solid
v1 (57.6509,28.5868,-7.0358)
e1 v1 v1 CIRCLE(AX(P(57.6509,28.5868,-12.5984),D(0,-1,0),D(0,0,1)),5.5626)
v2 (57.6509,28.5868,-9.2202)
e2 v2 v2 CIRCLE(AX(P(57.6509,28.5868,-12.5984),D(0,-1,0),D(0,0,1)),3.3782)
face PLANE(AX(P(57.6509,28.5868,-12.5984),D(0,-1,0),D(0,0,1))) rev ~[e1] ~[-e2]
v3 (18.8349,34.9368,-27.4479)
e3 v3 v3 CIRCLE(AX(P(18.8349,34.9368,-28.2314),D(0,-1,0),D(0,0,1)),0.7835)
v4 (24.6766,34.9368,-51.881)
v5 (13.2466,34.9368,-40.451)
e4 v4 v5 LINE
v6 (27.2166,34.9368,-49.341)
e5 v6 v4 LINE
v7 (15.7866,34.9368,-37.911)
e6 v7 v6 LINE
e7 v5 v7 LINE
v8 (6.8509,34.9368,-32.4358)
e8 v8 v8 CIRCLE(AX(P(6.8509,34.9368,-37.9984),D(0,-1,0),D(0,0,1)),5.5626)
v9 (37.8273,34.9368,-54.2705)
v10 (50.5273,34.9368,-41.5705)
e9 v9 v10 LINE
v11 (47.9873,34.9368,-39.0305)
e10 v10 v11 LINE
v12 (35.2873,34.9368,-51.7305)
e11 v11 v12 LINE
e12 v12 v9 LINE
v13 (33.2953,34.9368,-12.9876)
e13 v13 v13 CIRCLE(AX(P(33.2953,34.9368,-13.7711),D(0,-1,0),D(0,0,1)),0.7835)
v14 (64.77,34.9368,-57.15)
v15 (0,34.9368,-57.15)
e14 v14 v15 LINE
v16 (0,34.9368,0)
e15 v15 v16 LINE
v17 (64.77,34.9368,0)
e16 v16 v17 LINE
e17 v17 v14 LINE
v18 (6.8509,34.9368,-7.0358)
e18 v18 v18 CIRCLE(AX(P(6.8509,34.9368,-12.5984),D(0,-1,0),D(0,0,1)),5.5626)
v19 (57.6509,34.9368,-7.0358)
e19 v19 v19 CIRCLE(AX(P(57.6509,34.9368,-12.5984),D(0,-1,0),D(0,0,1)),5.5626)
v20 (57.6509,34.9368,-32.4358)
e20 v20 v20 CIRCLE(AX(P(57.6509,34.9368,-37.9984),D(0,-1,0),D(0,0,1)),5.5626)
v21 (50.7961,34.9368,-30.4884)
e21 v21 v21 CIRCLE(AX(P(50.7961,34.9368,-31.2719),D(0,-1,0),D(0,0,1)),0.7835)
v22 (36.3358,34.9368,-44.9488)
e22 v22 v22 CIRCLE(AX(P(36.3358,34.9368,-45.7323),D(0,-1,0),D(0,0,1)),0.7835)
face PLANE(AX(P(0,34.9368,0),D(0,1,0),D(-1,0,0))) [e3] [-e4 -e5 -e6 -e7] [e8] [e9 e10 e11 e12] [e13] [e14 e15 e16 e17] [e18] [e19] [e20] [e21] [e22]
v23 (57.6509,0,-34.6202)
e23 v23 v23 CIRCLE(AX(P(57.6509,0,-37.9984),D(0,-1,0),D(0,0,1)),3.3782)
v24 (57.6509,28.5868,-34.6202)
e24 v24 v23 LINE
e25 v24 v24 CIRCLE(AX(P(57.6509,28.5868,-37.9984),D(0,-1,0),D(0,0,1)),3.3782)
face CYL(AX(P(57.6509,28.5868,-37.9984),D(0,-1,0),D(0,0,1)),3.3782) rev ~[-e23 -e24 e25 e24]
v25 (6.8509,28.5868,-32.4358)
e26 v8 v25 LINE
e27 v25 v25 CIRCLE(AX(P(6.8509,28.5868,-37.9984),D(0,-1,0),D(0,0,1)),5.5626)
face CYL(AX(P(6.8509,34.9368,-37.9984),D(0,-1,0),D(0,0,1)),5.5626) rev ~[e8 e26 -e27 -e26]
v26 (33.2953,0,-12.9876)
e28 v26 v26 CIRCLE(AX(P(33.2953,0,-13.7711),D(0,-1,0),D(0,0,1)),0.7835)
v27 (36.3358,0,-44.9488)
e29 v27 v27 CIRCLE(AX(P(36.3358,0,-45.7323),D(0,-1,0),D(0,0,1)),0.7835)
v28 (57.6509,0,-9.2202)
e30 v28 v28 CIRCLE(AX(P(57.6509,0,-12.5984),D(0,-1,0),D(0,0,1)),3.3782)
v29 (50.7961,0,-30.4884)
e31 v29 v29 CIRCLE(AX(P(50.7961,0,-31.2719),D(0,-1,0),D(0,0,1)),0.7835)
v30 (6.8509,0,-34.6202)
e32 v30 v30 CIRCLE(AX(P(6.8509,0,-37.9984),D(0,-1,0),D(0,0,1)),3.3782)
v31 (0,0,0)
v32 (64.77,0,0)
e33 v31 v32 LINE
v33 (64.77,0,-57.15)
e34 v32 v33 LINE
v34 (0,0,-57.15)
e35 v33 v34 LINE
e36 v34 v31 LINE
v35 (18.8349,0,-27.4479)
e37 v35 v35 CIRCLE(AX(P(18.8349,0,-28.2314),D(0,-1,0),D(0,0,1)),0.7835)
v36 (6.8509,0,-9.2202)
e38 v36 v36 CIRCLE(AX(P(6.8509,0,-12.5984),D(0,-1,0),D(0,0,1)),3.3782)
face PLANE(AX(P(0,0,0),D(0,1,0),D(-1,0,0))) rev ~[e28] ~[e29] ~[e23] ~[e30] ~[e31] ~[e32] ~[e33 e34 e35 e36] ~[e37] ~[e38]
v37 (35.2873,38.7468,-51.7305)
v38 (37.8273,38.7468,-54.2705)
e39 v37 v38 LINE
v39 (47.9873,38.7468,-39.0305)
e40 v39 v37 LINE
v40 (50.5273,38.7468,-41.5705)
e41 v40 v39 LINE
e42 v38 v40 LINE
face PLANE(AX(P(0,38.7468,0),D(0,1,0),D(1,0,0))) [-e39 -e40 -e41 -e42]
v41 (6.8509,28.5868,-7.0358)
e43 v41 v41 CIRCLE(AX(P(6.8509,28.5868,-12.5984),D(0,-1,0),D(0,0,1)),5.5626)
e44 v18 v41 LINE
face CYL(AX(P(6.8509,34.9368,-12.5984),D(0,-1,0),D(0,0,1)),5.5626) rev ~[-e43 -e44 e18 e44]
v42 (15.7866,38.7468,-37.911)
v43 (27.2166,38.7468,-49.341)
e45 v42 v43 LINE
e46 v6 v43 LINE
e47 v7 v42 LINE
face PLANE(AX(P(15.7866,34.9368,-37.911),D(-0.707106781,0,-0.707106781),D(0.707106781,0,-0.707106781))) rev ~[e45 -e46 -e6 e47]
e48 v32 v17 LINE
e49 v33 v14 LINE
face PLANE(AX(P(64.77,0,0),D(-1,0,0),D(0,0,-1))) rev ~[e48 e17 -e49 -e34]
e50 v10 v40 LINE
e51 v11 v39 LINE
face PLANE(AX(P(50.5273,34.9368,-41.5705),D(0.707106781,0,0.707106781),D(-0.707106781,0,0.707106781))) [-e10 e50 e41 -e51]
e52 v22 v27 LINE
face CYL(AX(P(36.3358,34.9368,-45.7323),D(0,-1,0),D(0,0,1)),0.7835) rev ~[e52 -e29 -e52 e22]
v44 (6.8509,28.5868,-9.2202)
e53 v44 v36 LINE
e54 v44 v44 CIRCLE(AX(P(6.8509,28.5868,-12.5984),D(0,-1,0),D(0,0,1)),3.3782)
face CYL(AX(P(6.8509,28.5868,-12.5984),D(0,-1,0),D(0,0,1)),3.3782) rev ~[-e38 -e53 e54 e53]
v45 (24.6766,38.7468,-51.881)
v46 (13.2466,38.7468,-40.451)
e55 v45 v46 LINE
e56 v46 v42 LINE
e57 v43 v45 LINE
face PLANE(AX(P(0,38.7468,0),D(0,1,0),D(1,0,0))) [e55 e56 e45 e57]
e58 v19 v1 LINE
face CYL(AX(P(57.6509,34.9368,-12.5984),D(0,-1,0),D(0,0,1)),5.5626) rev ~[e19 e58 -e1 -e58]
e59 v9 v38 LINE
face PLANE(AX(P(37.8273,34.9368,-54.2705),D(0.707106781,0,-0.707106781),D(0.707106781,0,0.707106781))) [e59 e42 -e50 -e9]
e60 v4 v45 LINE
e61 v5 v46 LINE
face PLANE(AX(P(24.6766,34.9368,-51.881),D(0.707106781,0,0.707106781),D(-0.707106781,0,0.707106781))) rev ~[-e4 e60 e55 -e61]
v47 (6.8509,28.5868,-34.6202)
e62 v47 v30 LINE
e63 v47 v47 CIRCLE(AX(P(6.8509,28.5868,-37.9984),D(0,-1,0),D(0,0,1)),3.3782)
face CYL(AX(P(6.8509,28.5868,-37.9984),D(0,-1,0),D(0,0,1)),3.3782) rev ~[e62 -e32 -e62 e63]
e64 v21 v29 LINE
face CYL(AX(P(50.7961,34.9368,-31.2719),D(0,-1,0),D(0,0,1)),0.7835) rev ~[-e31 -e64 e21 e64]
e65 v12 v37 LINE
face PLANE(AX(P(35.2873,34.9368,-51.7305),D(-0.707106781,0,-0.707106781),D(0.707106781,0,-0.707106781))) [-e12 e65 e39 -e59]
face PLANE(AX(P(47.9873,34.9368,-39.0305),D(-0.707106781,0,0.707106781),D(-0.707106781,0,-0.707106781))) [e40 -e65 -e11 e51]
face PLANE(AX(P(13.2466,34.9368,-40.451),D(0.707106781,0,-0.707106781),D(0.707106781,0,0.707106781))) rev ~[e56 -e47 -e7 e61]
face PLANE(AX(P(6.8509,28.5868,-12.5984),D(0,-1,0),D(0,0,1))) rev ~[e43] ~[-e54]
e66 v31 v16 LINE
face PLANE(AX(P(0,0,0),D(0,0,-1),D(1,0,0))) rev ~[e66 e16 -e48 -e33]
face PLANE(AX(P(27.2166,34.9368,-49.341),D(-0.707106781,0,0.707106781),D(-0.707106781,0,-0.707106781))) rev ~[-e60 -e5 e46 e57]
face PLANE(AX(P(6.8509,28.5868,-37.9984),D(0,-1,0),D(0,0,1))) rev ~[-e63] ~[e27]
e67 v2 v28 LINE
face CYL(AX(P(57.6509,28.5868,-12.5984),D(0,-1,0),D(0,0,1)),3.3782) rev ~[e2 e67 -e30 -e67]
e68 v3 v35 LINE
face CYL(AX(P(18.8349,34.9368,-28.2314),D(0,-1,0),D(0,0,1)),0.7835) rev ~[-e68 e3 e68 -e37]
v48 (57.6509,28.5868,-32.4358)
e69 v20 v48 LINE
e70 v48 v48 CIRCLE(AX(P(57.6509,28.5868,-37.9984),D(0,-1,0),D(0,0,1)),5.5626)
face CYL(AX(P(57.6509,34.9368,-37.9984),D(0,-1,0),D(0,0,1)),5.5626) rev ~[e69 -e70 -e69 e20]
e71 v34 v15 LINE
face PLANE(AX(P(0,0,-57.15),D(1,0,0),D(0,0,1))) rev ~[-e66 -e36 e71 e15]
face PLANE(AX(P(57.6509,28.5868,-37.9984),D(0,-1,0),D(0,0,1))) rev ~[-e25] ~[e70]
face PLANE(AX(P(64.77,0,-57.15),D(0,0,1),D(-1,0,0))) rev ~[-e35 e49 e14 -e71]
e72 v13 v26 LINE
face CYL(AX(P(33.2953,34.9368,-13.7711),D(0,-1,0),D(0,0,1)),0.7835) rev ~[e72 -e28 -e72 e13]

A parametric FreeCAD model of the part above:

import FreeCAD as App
import Part
import Sketcher

V = App.Vector
Q = App.Units.Quantity

doc = App.newDocument("Part")
body = doc.addObject("PartDesign::Body", "Body")

# Sketch on XZ plane
sketch1 = doc.addObject("Sketcher::SketchObject", "Sketch")
body.addObject(sketch1)
sketch1.AttachmentSupport = (doc.XZ_Plane, [""])
sketch1.MapMode = "FlatFace"
sketch1.addGeometry(Part.LineSegment(V(0, -57.15, 0), V(0, 0, 0)), False)
sketch1.addGeometry(Part.LineSegment(V(0, 0, 0), V(64.77, 0, 0)), False)
sketch1.addGeometry(Part.LineSegment(V(64.77, 0, 0), V(64.77, -57.15, 0)), False)
sketch1.addGeometry(Part.LineSegment(V(64.77, -57.15, 0), V(0, -57.15, 0)), False)
sketch1.addConstraint(Sketcher.Constraint("Coincident", 0, 2, 1, 1))
sketch1.addConstraint(Sketcher.Constraint("Coincident", 1, 2, 2, 1))
sketch1.addConstraint(Sketcher.Constraint("Coincident", 2, 2, 3, 1))
sketch1.addConstraint(Sketcher.Constraint("Coincident", 3, 2, 0, 1))
sketch1.addConstraint(Sketcher.Constraint("Vertical", 0))
sketch1.addConstraint(Sketcher.Constraint("Horizontal", 1))
sketch1.addConstraint(Sketcher.Constraint("Vertical", 2))
sketch1.addConstraint(Sketcher.Constraint("Horizontal", 3))
sketch1.addConstraint(Sketcher.Constraint("Coincident", 0, 2, -1, 1))
sketch1.addConstraint(Sketcher.Constraint("DistanceX", 1, 1, 1, 2, Q("2.55 in")))
sketch1.addConstraint(Sketcher.Constraint("DistanceY", 0, 1, 0, 2, Q("2.25 in")))
pad1 = doc.addObject("PartDesign::Pad", "Pad")
body.addObject(pad1)
pad1.Profile = sketch1
pad1.Length = 34.9368
pad1.Reversed = True

# Sketch on XZ plane
sketch2 = doc.addObject("Sketcher::SketchObject", "Sketch001")
body.addObject(sketch2)
sketch2.AttachmentSupport = (doc.XZ_Plane, [""])
sketch2.MapMode = "FlatFace"
sketch2.AttachmentOffset = App.Placement(V(0, 0, -34.9368), App.Rotation())
sketch2.addGeometry(Part.Circle(V(50.7961, -31.2719, 0), V(0, 0, 1), 0.7835), False)
sketch2.addGeometry(Part.Circle(V(36.3358, -45.7323, 0), V(0, 0, 1), 0.7835), False)
sketch2.addGeometry(Part.Circle(V(18.8349, -28.2314, 0), V(0, 0, 1), 0.7835), False)
sketch2.addGeometry(Part.Circle(V(33.2953, -13.7711, 0), V(0, 0, 1), 0.7835), False)
sketch2.addConstraint(Sketcher.Constraint("Equal", 0, 1))
sketch2.addConstraint(Sketcher.Constraint("Equal", 1, 2))
sketch2.addConstraint(Sketcher.Constraint("Equal", 2, 3))
sketch2.addConstraint(Sketcher.Constraint("Diameter", 0, Q("0.0617 in")))
sketch2.addConstraint(Sketcher.Constraint("DistanceX", 2, 3, 1, 3, Q("0.689 in")))
sketch2.addConstraint(Sketcher.Constraint("DistanceY", 1, 3, 2, 3, Q("0.689 in")))
sketch2.addConstraint(Sketcher.Constraint("DistanceX", 3, 3, 0, 3, Q("0.689 in")))
sketch2.addConstraint(Sketcher.Constraint("DistanceY", 0, 3, 3, 3, Q("0.689 in")))
sketch2.addConstraint(Sketcher.Constraint("DistanceX", 1, 3, 0, 3, Q("0.5693 in")))
sketch2.addConstraint(Sketcher.Constraint("DistanceY", 1, 3, 0, 3, Q("0.5693 in")))
sketch2.addConstraint(Sketcher.Constraint("DistanceX", -1, 1, 0, 3, 50.796))
sketch2.addConstraint(Sketcher.Constraint("DistanceY", 0, 3, -1, 1, 31.272))
doc.recompute()
hole = doc.addObject("PartDesign::Hole", "Hole")
body.addObject(hole)
hole.Profile = sketch2
hole.ThreadType = "None"
hole.Diameter = Q("0.0616929 in")
hole.DepthType = "ThroughAll"
hole.Reversed = True

# Sketch on XZ plane
sketch3 = doc.addObject("Sketcher::SketchObject", "Sketch002")
body.addObject(sketch3)
sketch3.AttachmentSupport = (doc.XZ_Plane, [""])
sketch3.MapMode = "FlatFace"
sketch3.AttachmentOffset = App.Placement(V(0, 0, -34.9368), App.Rotation())
sketch3.addGeometry(Part.Circle(V(57.6509, -37.9984, 0), V(0, 0, 1), 3.3782), False)
sketch3.addGeometry(Part.Circle(V(57.6509, -12.5984, 0), V(0, 0, 1), 3.3782), False)
sketch3.addGeometry(Part.Circle(V(6.8509, -12.5984, 0), V(0, 0, 1), 3.3782), False)
sketch3.addGeometry(Part.Circle(V(6.8509, -37.9984, 0), V(0, 0, 1), 3.3782), False)
sketch3.addConstraint(Sketcher.Constraint("Equal", 0, 1))
sketch3.addConstraint(Sketcher.Constraint("Equal", 1, 2))
sketch3.addConstraint(Sketcher.Constraint("Equal", 2, 3))
sketch3.addConstraint(Sketcher.Constraint("Horizontal", 1, 3, 2, 3))
sketch3.addConstraint(Sketcher.Constraint("Horizontal", 0, 3, 3, 3))
sketch3.addConstraint(Sketcher.Constraint("Vertical", 0, 3, 1, 3))
sketch3.addConstraint(Sketcher.Constraint("Vertical", 2, 3, 3, 3))
sketch3.addConstraint(Sketcher.Constraint("Diameter", 0, Q("0.266 in")))
sketch3.addConstraint(Sketcher.Constraint("DistanceY", 0, 3, 1, 3, Q("1 in")))
sketch3.addConstraint(Sketcher.Constraint("DistanceX", 2, 3, 1, 3, Q("2 in")))
sketch3.addConstraint(Sketcher.Constraint("DistanceY", 0, 3, -1, 1, Q("1.496 in")))
sketch3.addConstraint(Sketcher.Constraint("DistanceX", -1, 1, 0, 3, 57.651))
doc.recompute()
hole2 = doc.addObject("PartDesign::Hole", "Hole001")
body.addObject(hole2)
hole2.Profile = sketch3
hole2.ThreadType = "None"
hole2.Diameter = Q("0.266 in")
hole2.DepthType = "ThroughAll"
hole2.HoleCutType = "Counterbore"
hole2.HoleCutDiameter = Q("0.438 in")
hole2.HoleCutDepth = Q("0.25 in")
hole2.Reversed = True

# Sketch on XZ plane
sketch4 = doc.addObject("Sketcher::SketchObject", "Sketch003")
body.addObject(sketch4)
sketch4.AttachmentSupport = (doc.XZ_Plane, [""])
sketch4.MapMode = "FlatFace"
sketch4.AttachmentOffset = App.Placement(V(0, 0, -34.9368), App.Rotation())
sketch4.addGeometry(Part.LineSegment(V(13.2466, -40.451, 0), V(15.7866, -37.911, 0)), False)
sketch4.addGeometry(Part.LineSegment(V(15.7866, -37.911, 0), V(27.2166, -49.341, 0)), False)
sketch4.addGeometry(Part.LineSegment(V(27.2166, -49.341, 0), V(24.6766, -51.881, 0)), False)
sketch4.addGeometry(Part.LineSegment(V(24.6766, -51.881, 0), V(13.2466, -40.451, 0)), False)
sketch4.addConstraint(Sketcher.Constraint("Coincident", 0, 2, 1, 1))
sketch4.addConstraint(Sketcher.Constraint("Coincident", 1, 2, 2, 1))
sketch4.addConstraint(Sketcher.Constraint("Coincident", 2, 2, 3, 1))
sketch4.addConstraint(Sketcher.Constraint("Coincident", 3, 2, 0, 1))
sketch4.addConstraint(Sketcher.Constraint("Perpendicular", 0, 1))
sketch4.addConstraint(Sketcher.Constraint("Perpendicular", 1, 2))
sketch4.addConstraint(Sketcher.Constraint("Perpendicular", 2, 3))
sketch4.addConstraint(Sketcher.Constraint("Angle", 0, Q("45 deg")))
sketch4.addConstraint(Sketcher.Constraint("DistanceX", 2, 2, 1, 2, Q("0.1 in")))
sketch4.addConstraint(Sketcher.Constraint("DistanceX", 0, 2, 1, 2, Q("0.45 in")))
sketch4.addConstraint(Sketcher.Constraint("DistanceX", -1, 1, 0, 2, 15.7866))
sketch4.addConstraint(Sketcher.Constraint("DistanceY", 0, 2, -1, 1, 37.911))
pad2 = doc.addObject("PartDesign::Pad", "Pad001")
body.addObject(pad2)
pad2.Profile = sketch4
pad2.Length = Q("0.15 in")
pad2.Reversed = True

# Sketch on XZ plane
sketch5 = doc.addObject("Sketcher::SketchObject", "Sketch004")
body.addObject(sketch5)
sketch5.AttachmentSupport = (doc.XZ_Plane, [""])
sketch5.MapMode = "FlatFace"
sketch5.AttachmentOffset = App.Placement(V(0, 0, -34.9368), App.Rotation())
sketch5.addGeometry(Part.LineSegment(V(35.2873, -51.7305, 0), V(47.9873, -39.0305, 0)), False)
sketch5.addGeometry(Part.LineSegment(V(47.9873, -39.0305, 0), V(50.5273, -41.5705, 0)), False)
sketch5.addGeometry(Part.LineSegment(V(50.5273, -41.5705, 0), V(37.8273, -54.2705, 0)), False)
sketch5.addGeometry(Part.LineSegment(V(37.8273, -54.2705, 0), V(35.2873, -51.7305, 0)), False)
sketch5.addConstraint(Sketcher.Constraint("Coincident", 0, 2, 1, 1))
sketch5.addConstraint(Sketcher.Constraint("Coincident", 1, 2, 2, 1))
sketch5.addConstraint(Sketcher.Constraint("Coincident", 2, 2, 3, 1))
sketch5.addConstraint(Sketcher.Constraint("Coincident", 3, 2, 0, 1))
sketch5.addConstraint(Sketcher.Constraint("Perpendicular", 0, 1))
sketch5.addConstraint(Sketcher.Constraint("Perpendicular", 1, 2))
sketch5.addConstraint(Sketcher.Constraint("Perpendicular", 2, 3))
sketch5.addConstraint(Sketcher.Constraint("Angle", 0, Q("45 deg")))
sketch5.addConstraint(Sketcher.Constraint("DistanceX", 0, 2, 1, 2, Q("0.1 in")))
sketch5.addConstraint(Sketcher.Constraint("DistanceX", 2, 2, 1, 2, Q("0.5 in")))
sketch5.addConstraint(Sketcher.Constraint("DistanceX", -1, 1, 0, 2, 47.9873))
sketch5.addConstraint(Sketcher.Constraint("DistanceY", 0, 2, -1, 1, 39.0305))
pad3 = doc.addObject("PartDesign::Pad", "Pad002")
body.addObject(pad3)
pad3.Profile = sketch5
pad3.Length = Q("0.15 in")
pad3.Reversed = True

doc.recompute()
